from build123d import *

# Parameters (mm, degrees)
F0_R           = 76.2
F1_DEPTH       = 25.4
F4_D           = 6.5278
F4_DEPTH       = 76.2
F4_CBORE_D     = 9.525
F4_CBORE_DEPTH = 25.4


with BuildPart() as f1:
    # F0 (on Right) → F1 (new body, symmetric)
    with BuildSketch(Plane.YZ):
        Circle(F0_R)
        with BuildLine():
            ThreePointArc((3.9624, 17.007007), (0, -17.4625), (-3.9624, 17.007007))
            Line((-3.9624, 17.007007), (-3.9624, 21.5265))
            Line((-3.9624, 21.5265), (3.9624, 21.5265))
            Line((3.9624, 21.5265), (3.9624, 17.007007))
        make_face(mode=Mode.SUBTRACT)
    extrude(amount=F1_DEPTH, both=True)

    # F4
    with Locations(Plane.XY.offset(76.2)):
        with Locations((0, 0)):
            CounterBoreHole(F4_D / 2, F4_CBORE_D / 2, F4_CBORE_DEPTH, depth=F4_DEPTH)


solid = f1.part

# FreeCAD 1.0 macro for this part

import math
import FreeCAD as App
import Part
import Sketcher

V = App.Vector
Q = App.Units.Quantity

doc = App.newDocument("Part")
params = doc.addObject("Spreadsheet::Sheet", "Params")
for row, (alias, value) in enumerate([
    ("sketch1_diameter", "6 in"),
    ("sketch1_radius", "0.6875 in"),
    ("sketch1_width", "0.312 in"),
    ("pad1_length", "2 in"),
    ("sketch2_diameter", "0.257 in"),
    ("hole_diameter", "0.257 in"),
    ("hole_depth", "3 in"),
    ("hole_cbore_diameter", "0.375 in"),
    ("hole_cbore_depth", "1 in"),
], start=1):
    params.set(f"A{row}", alias)
    params.set(f"B{row}", "=" + value)
    params.setAlias(f"B{row}", alias)

body = doc.addObject("PartDesign::Body", "Body")

# Sketch on YZ plane
sketch1 = body.newObject("Sketcher::SketchObject", "Sketch")
sketch1.AttachmentSupport = (doc.getObject("YZ_Plane"), [""])
sketch1.MapMode = "FlatFace"
sketch1.addGeometry([
    Part.Circle(V(0, 0, 0), V(0, 0, 1), 76.2),  # 0
    Part.LineSegment(V(4, 21.5, 0), V(4, 17, 0)),  # 1
    Part.ArcOfCircle(Part.Circle(V(0, 0, 0), V(0, 0, 1), 17.5), math.radians(103), math.radians(437)),  # 2
    Part.LineSegment(V(-4, 17, 0), V(-4, 21.5, 0)),  # 3
    Part.LineSegment(V(-4, 21.5, 0), V(4, 21.5, 0)),  # 4
], False)
sketch1.addConstraint([
    Sketcher.Constraint("Coincident", 1, 2, 2, 2),
    Sketcher.Constraint("Coincident", 2, 1, 3, 1),
    Sketcher.Constraint("Coincident", 3, 2, 4, 1),
    Sketcher.Constraint("Coincident", 4, 2, 1, 1),
    Sketcher.Constraint("Vertical", 1),
    Sketcher.Constraint("Vertical", 3),
    Sketcher.Constraint("Horizontal", 4),
    Sketcher.Constraint("Coincident", 0, 3, -1, 1),
    Sketcher.Constraint("Coincident", 2, 3, -1, 1),
    Sketcher.Constraint("Horizontal", 1, 2, 2, 1),
    Sketcher.Constraint("Diameter", 0, Q("6 in")),
    Sketcher.Constraint("Radius", 2, Q("0.6875 in")),
    Sketcher.Constraint("DistanceX", 4, 1, 4, 2, Q("0.312 in")),
    Sketcher.Constraint("DistanceY", -1, 1, 3, 2, Q("0.8475 in")),
])
sketch1.setExpression("Constraints[10]", "Params.sketch1_diameter")
sketch1.setExpression("Constraints[11]", "Params.sketch1_radius")
sketch1.setExpression("Constraints[12]", "Params.sketch1_width")
pad1 = body.newObject("PartDesign::Pad", "Pad")
pad1.Profile = sketch1
pad1.setExpression("Length", "Params.pad1_length")
pad1.Midplane = True

# Sketch on XY plane
sketch2 = body.newObject("Sketcher::SketchObject", "Sketch001")
sketch2.AttachmentSupport = (doc.getObject("XY_Plane"), [""])
sketch2.MapMode = "FlatFace"
sketch2.AttachmentOffset = App.Placement(V(0, 0, 3 * 25.4), App.Rotation())
sketch2.addGeometry(Part.Circle(V(0, 0, 0), V(0, 0, 1), 3.3), False)
sketch2.addConstraint([
    Sketcher.Constraint("Coincident", 0, 3, -1, 1),
    Sketcher.Constraint("Diameter", 0, Q("0.257 in")),
])
sketch2.setExpression("Constraints[1]", "Params.sketch2_diameter")
doc.recompute()
hole = body.newObject("PartDesign::Hole", "Hole")
hole.Profile = sketch2
hole.ThreadType = "None"
hole.setExpression("Diameter", "Params.hole_diameter")
hole.DepthType = "Dimension"
hole.setExpression("Depth", "Params.hole_depth")
hole.DrillPoint = "Flat"
hole.HoleCutType = "Counterbore"
hole.setExpression("HoleCutDiameter", "Params.hole_cbore_diameter")
hole.setExpression("HoleCutDepth", "Params.hole_cbore_depth")

doc.recompute()
